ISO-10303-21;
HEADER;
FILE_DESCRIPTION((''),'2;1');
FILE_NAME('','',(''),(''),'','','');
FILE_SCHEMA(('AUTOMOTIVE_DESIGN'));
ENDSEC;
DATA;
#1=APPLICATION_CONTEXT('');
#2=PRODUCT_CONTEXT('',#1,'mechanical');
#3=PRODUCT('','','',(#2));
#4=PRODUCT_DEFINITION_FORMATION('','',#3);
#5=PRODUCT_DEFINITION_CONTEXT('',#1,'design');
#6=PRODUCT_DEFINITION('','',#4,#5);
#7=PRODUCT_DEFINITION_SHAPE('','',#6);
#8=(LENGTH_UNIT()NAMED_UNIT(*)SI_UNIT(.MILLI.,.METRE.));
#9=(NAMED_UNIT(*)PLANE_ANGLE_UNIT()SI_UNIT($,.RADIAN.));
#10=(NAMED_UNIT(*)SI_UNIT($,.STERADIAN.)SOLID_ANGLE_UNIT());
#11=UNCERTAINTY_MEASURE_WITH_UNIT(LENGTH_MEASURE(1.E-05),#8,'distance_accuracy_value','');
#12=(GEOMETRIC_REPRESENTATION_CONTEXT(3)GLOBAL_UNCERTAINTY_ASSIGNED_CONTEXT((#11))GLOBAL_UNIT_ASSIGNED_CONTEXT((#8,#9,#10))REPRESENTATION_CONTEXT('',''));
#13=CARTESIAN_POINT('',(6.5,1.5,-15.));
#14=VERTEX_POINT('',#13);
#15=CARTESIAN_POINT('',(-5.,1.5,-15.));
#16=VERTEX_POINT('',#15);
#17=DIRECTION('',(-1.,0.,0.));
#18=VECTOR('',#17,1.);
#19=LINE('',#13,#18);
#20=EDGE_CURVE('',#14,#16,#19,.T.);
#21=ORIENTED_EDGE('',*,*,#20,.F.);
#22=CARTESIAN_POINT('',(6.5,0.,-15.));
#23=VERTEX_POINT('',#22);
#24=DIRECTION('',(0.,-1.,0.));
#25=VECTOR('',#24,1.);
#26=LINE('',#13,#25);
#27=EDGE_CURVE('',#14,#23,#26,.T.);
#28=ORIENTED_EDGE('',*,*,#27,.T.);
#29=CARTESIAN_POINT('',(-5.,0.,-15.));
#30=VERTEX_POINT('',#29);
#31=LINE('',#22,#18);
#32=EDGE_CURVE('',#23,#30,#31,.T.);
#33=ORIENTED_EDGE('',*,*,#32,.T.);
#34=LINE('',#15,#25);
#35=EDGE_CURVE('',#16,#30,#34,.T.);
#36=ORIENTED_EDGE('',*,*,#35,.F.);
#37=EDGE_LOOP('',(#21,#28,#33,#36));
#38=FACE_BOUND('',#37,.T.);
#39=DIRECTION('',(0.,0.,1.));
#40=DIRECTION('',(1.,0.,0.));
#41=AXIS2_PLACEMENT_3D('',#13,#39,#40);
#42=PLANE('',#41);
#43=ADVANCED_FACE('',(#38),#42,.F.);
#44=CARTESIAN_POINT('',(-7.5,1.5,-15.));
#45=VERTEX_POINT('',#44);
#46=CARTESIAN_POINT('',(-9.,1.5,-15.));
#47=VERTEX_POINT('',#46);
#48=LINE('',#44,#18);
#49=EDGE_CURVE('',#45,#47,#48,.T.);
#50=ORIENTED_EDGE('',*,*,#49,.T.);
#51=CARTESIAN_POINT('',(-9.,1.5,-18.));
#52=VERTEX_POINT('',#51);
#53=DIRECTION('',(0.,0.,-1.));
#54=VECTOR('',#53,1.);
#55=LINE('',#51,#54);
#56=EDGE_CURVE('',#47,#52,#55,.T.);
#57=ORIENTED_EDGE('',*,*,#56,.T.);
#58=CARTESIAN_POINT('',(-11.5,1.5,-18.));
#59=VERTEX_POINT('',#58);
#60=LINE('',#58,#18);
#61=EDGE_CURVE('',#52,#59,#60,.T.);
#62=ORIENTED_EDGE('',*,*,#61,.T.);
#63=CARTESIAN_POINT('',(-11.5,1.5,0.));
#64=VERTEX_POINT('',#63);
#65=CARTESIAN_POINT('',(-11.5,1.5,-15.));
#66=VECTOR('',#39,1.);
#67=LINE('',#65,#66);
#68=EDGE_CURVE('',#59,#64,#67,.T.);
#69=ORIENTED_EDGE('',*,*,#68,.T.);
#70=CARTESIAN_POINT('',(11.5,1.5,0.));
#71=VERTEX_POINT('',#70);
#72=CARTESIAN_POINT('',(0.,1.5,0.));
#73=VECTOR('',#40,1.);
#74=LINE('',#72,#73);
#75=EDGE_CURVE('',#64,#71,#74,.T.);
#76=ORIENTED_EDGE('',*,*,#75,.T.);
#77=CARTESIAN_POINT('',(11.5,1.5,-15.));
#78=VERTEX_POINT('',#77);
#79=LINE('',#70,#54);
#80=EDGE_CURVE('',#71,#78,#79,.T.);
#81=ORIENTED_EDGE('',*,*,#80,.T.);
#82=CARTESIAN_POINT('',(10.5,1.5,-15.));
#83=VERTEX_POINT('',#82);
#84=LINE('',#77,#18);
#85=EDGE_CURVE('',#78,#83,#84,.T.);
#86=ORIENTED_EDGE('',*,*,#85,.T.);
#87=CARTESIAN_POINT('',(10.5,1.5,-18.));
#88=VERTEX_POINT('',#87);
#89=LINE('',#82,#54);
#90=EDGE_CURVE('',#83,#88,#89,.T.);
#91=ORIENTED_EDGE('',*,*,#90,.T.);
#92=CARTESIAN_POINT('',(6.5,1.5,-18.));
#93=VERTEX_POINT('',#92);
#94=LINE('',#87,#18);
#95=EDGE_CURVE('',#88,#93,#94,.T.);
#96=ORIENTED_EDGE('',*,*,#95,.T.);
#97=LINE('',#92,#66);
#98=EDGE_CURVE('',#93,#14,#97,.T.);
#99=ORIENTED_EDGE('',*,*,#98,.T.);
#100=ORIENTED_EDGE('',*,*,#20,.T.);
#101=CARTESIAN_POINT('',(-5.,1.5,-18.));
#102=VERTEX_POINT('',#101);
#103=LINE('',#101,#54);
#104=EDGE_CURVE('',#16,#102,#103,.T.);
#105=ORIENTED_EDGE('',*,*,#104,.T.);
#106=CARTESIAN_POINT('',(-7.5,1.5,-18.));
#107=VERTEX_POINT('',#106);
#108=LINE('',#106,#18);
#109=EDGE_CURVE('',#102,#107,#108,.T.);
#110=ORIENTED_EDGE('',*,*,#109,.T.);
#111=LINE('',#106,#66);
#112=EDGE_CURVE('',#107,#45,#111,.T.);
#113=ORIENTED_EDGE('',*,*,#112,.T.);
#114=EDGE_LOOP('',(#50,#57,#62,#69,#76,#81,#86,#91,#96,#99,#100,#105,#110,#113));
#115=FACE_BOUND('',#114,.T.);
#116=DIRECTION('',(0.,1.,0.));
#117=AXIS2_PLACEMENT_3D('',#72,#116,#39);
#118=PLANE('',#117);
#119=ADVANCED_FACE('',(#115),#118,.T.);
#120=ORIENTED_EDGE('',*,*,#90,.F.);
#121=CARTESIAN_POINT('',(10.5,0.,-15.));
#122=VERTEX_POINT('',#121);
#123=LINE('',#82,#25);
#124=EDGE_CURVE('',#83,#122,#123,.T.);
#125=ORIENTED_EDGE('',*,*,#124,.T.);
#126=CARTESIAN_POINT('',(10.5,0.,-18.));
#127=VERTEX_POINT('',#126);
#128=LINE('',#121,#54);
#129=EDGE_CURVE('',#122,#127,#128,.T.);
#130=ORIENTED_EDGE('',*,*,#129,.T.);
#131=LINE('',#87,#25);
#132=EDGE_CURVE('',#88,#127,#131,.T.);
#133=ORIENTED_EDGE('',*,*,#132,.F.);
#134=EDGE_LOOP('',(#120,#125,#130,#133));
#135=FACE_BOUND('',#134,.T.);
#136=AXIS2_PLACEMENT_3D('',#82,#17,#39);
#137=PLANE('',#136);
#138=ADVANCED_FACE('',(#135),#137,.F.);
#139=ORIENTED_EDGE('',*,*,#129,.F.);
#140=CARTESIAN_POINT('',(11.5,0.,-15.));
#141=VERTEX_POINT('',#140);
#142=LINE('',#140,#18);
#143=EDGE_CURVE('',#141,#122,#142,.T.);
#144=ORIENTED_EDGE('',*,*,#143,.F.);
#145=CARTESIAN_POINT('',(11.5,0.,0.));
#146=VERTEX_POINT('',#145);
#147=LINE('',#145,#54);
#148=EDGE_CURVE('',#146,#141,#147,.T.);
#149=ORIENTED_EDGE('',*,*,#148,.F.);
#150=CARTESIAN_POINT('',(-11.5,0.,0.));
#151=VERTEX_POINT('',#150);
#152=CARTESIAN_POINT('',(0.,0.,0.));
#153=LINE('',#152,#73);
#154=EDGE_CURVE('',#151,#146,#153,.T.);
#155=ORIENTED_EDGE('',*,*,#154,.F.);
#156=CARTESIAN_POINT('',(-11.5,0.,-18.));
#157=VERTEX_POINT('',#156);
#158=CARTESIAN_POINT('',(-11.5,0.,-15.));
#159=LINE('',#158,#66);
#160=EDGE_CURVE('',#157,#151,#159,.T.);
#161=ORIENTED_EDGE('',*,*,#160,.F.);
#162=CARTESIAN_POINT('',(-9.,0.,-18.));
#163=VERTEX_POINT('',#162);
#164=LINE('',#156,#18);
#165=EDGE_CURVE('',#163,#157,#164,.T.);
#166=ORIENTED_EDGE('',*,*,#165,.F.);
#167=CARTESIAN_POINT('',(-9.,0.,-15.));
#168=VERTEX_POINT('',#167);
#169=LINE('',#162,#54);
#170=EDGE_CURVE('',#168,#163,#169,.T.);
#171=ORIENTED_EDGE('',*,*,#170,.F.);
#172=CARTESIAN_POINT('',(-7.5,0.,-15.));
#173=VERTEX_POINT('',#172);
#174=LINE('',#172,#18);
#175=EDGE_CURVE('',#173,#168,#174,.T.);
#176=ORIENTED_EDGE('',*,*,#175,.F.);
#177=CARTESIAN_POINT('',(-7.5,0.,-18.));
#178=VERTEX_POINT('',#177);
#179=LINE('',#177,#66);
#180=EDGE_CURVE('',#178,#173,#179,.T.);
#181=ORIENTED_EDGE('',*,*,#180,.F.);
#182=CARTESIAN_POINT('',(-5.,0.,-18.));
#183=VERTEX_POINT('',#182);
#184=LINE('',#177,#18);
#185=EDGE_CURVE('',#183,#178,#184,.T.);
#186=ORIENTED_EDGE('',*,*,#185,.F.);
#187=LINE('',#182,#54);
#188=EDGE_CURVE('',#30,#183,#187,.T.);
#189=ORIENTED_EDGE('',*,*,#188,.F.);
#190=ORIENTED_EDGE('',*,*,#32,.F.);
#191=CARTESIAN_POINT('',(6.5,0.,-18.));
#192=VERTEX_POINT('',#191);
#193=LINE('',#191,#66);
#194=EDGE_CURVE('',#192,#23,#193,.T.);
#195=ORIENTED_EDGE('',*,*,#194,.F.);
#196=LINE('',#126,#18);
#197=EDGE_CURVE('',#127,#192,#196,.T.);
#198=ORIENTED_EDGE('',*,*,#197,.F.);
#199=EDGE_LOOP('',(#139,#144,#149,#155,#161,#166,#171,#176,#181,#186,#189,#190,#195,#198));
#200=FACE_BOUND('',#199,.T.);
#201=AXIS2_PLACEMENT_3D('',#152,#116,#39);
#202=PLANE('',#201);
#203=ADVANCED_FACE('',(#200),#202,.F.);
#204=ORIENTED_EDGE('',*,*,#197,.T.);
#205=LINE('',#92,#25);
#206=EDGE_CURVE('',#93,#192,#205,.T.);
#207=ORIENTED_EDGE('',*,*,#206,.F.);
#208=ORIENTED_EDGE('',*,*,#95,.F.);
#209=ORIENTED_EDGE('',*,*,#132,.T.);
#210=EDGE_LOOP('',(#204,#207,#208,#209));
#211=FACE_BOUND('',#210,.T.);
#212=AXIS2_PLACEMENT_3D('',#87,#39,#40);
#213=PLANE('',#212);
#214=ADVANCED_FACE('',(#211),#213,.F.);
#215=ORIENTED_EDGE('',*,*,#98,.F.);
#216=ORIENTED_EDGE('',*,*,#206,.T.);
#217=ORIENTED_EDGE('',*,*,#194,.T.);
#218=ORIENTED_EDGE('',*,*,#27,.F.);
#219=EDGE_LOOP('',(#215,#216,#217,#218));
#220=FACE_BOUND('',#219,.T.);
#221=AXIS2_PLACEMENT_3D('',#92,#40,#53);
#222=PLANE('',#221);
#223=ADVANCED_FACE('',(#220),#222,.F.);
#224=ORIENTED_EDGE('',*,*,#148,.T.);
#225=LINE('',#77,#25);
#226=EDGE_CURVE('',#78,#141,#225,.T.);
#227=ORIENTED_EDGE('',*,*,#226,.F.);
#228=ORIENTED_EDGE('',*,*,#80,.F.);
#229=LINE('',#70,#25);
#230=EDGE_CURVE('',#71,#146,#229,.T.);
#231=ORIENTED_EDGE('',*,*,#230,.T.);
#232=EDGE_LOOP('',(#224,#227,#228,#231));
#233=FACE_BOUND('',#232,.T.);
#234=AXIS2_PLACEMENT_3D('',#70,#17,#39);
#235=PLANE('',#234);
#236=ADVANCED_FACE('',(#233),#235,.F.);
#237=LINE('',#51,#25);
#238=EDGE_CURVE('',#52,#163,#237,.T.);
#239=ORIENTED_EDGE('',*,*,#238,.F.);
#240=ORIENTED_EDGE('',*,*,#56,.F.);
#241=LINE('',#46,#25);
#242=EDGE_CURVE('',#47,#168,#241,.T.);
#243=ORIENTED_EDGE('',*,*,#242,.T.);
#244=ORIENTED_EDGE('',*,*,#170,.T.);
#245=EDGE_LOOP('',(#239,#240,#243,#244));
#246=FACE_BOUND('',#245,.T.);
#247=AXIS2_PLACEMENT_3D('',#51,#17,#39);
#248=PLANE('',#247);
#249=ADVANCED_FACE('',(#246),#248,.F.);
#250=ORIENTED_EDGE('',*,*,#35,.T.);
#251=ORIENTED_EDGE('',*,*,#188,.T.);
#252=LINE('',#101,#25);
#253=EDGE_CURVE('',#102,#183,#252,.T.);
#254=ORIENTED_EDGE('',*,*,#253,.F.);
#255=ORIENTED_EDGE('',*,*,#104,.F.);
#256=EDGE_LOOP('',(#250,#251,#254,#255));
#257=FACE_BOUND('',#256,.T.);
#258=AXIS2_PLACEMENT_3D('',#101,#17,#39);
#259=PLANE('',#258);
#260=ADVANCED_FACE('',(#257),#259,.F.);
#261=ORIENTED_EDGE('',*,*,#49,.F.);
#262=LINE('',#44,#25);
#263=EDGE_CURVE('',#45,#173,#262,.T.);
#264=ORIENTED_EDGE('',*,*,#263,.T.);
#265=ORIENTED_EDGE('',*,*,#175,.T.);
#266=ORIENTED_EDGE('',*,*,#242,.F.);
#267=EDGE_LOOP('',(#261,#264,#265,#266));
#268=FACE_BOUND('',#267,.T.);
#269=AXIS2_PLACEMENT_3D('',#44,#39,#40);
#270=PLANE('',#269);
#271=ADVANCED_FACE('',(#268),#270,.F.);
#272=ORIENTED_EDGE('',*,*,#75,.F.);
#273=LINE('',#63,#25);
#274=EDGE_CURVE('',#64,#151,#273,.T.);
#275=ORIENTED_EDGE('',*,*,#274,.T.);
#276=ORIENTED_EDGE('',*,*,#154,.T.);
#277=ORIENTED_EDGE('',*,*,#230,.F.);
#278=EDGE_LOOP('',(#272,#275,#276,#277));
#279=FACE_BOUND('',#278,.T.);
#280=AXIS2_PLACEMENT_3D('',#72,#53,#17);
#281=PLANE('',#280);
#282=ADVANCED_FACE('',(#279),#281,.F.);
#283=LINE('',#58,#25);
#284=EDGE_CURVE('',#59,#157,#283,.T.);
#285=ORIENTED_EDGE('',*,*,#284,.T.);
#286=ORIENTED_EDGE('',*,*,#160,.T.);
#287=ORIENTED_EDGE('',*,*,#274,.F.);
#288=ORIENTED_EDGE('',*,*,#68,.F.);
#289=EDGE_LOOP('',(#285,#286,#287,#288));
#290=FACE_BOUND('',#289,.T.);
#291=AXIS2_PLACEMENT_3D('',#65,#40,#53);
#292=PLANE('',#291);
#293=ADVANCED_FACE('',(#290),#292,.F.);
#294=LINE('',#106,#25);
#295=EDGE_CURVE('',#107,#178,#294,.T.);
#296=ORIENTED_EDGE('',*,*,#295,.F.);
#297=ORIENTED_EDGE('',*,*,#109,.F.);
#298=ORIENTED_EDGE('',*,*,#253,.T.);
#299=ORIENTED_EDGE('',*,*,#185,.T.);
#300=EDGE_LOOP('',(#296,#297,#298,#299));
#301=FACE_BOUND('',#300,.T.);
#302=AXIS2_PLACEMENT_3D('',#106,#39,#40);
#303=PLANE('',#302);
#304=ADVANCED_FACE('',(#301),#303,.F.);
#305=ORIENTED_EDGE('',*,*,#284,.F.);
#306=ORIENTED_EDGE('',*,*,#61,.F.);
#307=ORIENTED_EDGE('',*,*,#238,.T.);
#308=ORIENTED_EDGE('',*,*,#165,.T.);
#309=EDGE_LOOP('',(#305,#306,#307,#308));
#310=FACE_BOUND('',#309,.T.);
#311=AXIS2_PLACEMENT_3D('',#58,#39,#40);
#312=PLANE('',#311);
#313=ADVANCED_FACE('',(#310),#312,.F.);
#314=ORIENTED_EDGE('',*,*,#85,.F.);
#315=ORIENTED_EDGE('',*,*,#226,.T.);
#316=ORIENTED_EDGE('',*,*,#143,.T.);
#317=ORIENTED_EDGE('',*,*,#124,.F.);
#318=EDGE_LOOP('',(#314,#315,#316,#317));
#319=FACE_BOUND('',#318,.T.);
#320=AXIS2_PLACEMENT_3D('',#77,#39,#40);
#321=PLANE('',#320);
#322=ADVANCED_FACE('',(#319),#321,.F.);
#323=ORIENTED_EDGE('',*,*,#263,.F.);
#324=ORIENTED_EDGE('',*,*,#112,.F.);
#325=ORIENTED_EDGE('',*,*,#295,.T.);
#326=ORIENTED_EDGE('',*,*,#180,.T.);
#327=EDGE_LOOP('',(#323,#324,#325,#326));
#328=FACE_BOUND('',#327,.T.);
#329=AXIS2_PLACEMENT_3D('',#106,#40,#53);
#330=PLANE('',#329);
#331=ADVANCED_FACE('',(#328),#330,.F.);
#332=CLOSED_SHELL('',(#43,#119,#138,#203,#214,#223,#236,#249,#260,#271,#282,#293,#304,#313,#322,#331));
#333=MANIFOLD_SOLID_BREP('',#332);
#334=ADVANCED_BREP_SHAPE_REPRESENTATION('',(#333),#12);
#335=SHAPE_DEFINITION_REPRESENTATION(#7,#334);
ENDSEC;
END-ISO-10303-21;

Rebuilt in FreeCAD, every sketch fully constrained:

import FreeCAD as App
import Part
import Sketcher
from FreeCAD import Vector


def add_polygon(sketch, points):
    """Adds a closed chain of lines whose ends are joined by coincident constraints."""
    first, n = sketch.GeometryCount, len(points)
    for a, b in zip(points, points[1:] + points[:1]):
        sketch.addGeometry(Part.LineSegment(App.Vector(*a, 0), App.Vector(*b, 0)), False)
    for i in range(n):
        sketch.addConstraint(Sketcher.Constraint("Coincident", first + i, 2, first + (i + 1) % n, 1))

doc = App.newDocument("Part")
params = doc.addObject("Spreadsheet::Sheet", "Params")
for row, (alias, value) in enumerate([
    ("sketch1_width", "4 mm"),
    ("sketch1_width2", "23 mm"),
    ("sketch1_width3", "1 mm"),
    ("sketch1_height", "3 mm"),
    ("sketch1_height2", "18 mm"),
    ("pad1_length", "1.5 mm"),
], start=1):
    params.set(f"A{row}", alias)
    params.set(f"B{row}", "=" + value)
    params.setAlias(f"B{row}", alias)

body = doc.addObject("PartDesign::Body", "Body")

sketch1 = body.newObject("Sketcher::SketchObject", "Sketch")
sketch1.AttachmentSupport = (doc.getObject("XZ_Plane"), [""])
sketch1.MapMode = "FlatFace"
add_polygon(sketch1, [(10.5, -18), (6.5, -18), (6.5, -15), (-5, -15), (-5, -18), (-7.5, -18), (-7.5, -15), (-9, -15), (-9, -18), (-11.5, -18), (-11.5, 0), (11.5, 0), (11.5, -15), (10.5, -15)])
sketch1.addConstraint([
    Sketcher.Constraint("Horizontal", 0),
    Sketcher.Constraint("Vertical", 1),
    Sketcher.Constraint("Horizontal", 2),
    Sketcher.Constraint("Vertical", 3),
    Sketcher.Constraint("Horizontal", 4),
    Sketcher.Constraint("Vertical", 5),
    Sketcher.Constraint("Horizontal", 6),
    Sketcher.Constraint("Vertical", 7),
    Sketcher.Constraint("Horizontal", 8),
    Sketcher.Constraint("Vertical", 9),
    Sketcher.Constraint("Horizontal", 10),
    Sketcher.Constraint("Vertical", 11),
    Sketcher.Constraint("Horizontal", 12),
    Sketcher.Constraint("Vertical", 13),
    Sketcher.Constraint("Symmetric", 9, 2, 10, 2, -1, 1),
    Sketcher.Constraint("Horizontal", 0, 2, 3, 2),
    Sketcher.Constraint("Horizontal", 2, 2, 5, 2),
    Sketcher.Constraint("Horizontal", 4, 2, 7, 2),
    Sketcher.Constraint("Horizontal", 6, 2, 11, 2),
    Sketcher.Constraint("Equal", 4, 8),
    Sketcher.Constraint("DistanceX", 0, 2, 0, 1, 4.0),
    Sketcher.Constraint("DistanceX", 10, 1, 10, 2, 23.0),
    Sketcher.Constraint("DistanceX", 12, 2, 12, 1, 1.0),
    Sketcher.Constraint("DistanceY", 1, 1, 1, 2, 3.0),
    Sketcher.Constraint("DistanceY", 9, 1, 9, 2, 18.0),
    Sketcher.Constraint("DistanceX", 2, 2, 2, 1, 11.5),
    Sketcher.Constraint("DistanceX", 4, 2, 4, 1, 2.5),
])
sketch1.setExpression("Constraints[34]", "Params.sketch1_width")
sketch1.setExpression("Constraints[35]", "Params.sketch1_width2")
sketch1.setExpression("Constraints[36]", "Params.sketch1_width3")
sketch1.setExpression("Constraints[37]", "Params.sketch1_height")
sketch1.setExpression("Constraints[38]", "Params.sketch1_height2")
pad1 = body.newObject("PartDesign::Pad", "Pad")
pad1.Profile = sketch1
pad1.setExpression("Length", "Params.pad1_length")
pad1.Reversed = True

doc.recompute()
